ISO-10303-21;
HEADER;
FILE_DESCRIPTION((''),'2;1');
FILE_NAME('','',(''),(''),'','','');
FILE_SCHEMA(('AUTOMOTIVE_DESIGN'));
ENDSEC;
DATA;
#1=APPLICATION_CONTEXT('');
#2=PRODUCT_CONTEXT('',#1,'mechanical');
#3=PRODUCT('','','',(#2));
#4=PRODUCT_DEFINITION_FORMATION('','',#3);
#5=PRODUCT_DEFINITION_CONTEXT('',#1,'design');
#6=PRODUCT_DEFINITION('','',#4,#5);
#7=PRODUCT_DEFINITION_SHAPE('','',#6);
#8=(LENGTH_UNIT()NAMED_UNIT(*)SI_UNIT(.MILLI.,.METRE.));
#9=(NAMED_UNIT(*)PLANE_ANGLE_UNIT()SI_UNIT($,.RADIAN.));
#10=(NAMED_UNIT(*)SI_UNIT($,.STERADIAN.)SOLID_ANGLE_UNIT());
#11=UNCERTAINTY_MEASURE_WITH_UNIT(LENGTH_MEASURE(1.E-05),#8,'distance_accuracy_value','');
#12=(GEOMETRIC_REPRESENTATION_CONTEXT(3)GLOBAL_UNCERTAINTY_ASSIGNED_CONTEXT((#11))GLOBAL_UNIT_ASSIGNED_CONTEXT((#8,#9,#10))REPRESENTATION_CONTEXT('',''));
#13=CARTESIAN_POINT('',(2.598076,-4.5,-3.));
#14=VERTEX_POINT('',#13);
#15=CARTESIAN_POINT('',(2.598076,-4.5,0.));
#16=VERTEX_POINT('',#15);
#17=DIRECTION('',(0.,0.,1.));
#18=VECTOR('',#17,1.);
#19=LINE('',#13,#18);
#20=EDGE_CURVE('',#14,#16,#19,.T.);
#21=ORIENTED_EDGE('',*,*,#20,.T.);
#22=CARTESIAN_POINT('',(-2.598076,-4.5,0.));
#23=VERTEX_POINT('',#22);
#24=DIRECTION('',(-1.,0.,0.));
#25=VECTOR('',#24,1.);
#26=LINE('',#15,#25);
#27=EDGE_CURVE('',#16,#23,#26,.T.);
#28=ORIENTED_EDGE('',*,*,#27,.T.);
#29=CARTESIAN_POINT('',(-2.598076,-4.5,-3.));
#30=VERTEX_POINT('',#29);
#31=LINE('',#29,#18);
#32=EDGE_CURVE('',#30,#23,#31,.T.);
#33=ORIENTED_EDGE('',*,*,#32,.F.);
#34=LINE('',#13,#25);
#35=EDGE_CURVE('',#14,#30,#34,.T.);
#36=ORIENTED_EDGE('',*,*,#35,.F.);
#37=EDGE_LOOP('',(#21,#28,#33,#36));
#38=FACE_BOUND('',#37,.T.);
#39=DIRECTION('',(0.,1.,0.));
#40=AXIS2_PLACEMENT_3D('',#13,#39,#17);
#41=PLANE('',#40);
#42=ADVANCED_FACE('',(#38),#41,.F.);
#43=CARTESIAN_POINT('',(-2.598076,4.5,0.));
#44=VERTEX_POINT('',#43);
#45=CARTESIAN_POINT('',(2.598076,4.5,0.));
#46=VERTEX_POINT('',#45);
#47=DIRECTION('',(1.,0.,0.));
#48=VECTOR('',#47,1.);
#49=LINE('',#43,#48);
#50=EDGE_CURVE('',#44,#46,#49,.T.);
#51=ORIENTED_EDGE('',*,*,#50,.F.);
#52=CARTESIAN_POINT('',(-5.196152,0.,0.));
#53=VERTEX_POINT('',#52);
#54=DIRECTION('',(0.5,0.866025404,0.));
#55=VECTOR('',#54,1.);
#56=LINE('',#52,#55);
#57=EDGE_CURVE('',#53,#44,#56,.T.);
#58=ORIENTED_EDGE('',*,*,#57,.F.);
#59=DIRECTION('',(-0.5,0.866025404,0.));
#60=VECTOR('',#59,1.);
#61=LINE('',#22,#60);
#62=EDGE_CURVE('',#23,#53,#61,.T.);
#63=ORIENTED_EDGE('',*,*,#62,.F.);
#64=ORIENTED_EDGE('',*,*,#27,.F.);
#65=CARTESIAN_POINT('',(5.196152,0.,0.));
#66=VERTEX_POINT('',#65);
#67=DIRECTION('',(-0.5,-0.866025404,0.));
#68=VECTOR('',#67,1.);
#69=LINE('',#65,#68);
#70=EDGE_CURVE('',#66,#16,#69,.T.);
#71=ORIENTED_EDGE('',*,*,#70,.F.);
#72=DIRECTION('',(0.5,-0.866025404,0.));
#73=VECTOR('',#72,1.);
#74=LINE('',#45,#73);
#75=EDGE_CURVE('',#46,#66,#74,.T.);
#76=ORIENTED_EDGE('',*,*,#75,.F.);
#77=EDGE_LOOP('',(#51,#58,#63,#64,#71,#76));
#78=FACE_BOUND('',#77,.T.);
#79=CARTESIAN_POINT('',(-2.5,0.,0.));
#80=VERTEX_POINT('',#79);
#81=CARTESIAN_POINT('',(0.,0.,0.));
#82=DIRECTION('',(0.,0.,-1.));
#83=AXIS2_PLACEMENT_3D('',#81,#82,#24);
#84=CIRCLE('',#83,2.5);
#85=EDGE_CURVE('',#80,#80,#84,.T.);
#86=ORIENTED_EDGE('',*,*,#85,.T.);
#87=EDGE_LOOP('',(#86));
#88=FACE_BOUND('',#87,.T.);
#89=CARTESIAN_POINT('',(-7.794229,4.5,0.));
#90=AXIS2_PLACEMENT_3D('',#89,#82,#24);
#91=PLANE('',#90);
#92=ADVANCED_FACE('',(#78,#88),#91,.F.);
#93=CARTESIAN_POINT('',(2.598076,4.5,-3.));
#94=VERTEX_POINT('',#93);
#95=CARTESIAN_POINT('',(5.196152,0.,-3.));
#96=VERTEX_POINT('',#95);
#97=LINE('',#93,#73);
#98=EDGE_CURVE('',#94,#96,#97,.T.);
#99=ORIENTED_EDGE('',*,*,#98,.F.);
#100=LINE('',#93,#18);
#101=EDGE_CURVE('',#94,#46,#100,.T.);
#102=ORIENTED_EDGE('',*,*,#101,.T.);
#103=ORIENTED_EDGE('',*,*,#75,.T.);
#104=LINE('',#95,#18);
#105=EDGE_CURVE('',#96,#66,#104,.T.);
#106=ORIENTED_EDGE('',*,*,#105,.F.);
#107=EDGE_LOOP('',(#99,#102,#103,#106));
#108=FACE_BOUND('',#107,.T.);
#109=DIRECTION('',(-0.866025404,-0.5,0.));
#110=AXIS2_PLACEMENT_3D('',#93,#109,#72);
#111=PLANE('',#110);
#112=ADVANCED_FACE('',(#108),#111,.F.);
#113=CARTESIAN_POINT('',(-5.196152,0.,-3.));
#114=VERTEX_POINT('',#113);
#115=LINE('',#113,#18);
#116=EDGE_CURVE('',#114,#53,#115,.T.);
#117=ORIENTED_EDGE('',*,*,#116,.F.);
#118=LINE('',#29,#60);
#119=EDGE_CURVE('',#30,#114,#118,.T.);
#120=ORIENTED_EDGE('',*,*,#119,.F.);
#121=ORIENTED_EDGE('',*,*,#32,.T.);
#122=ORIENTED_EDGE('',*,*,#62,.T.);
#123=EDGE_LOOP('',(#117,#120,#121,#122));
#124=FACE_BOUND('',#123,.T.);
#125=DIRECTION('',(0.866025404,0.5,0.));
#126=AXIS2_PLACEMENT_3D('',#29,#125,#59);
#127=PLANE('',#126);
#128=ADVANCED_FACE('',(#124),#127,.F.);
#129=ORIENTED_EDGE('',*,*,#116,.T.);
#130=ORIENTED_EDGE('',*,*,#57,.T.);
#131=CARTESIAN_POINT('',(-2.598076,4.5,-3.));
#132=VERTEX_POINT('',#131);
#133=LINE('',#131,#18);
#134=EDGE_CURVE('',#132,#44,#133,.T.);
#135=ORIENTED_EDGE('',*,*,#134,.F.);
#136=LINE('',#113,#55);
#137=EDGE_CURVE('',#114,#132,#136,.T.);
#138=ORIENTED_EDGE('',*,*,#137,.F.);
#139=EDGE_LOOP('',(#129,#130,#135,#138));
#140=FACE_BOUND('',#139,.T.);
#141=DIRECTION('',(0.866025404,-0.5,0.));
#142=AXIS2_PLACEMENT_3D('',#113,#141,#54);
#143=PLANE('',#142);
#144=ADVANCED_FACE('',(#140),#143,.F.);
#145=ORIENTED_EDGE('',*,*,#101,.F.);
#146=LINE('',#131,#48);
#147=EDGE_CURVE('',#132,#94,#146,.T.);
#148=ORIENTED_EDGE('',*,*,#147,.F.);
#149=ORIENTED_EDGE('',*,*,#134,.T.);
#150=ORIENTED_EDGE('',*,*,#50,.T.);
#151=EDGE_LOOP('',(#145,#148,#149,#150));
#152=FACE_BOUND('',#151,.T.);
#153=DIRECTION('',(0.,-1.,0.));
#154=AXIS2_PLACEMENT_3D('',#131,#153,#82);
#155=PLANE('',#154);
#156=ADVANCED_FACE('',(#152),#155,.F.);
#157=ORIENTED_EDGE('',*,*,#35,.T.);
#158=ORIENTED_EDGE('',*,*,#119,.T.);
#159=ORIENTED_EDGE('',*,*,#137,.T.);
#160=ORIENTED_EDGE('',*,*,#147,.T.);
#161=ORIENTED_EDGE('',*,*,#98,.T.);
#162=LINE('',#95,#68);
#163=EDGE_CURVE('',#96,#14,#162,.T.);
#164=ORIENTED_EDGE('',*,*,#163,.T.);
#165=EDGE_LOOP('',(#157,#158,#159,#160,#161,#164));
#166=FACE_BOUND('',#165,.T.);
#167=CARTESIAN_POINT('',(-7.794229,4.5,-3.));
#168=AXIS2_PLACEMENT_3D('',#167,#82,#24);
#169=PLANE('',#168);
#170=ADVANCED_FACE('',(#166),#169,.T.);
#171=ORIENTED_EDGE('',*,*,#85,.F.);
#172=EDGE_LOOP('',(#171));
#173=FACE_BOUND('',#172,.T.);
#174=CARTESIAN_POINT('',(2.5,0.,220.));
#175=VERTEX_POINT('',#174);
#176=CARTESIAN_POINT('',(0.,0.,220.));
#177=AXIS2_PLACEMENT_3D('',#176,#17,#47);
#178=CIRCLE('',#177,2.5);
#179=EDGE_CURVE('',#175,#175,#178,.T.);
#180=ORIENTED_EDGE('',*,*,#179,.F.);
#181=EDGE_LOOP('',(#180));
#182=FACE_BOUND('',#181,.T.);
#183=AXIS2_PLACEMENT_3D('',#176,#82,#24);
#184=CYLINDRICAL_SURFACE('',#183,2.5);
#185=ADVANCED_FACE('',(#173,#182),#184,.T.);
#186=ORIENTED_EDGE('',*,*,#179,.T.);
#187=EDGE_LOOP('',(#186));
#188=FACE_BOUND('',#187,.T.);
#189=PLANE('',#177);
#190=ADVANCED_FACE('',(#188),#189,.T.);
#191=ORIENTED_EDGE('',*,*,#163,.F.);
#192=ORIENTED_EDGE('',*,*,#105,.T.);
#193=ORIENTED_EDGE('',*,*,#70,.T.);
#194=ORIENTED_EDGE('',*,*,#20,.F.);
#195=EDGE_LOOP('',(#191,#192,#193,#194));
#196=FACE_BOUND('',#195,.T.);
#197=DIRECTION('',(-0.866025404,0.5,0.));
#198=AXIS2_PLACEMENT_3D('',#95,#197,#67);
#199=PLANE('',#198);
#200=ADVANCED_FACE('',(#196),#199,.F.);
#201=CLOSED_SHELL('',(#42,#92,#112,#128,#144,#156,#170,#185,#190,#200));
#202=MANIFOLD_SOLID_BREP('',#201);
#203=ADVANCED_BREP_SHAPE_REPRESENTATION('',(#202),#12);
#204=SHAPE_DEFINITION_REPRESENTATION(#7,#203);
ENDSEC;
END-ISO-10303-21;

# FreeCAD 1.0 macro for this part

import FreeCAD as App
import Part
import Sketcher

V = App.Vector
Q = App.Units.Quantity


def add_polygon(sketch, points):
    """Adds a closed chain of lines whose ends are joined by coincident constraints."""
    first, n = sketch.GeometryCount, len(points)
    for a, b in zip(points, points[1:] + points[:1]):
        sketch.addGeometry(Part.LineSegment(App.Vector(*a, 0), App.Vector(*b, 0)), False)
    for i in range(n):
        sketch.addConstraint(Sketcher.Constraint("Coincident", first + i, 2, first + (i + 1) % n, 1))

doc = App.newDocument("Part")
body = doc.addObject("PartDesign::Body", "Body")

# Sketch on XY plane
sketch1 = body.newObject("Sketcher::SketchObject", "Sketch")
sketch1.AttachmentSupport = (doc.getObject("XY_Plane"), [""])
sketch1.MapMode = "FlatFace"
sketch1.addGeometry(Part.Circle(V(0, 0, 0), V(0, 0, 1), 2.5), False)
sketch1.addConstraint(Sketcher.Constraint("Coincident", 0, 3, -1, 1))
sketch1.addConstraint(Sketcher.Constraint("Diameter", 0, 5.0))
pad1 = body.newObject("PartDesign::Pad", "Pad")
pad1.Profile = sketch1
pad1.Length = 220

# Sketch on XY plane
sketch2 = body.newObject("Sketcher::SketchObject", "Sketch001")
sketch2.AttachmentSupport = (doc.getObject("XY_Plane"), [""])
sketch2.MapMode = "FlatFace"
add_polygon(sketch2, [(-5, 0), (-3, 4), (3, 4), (5, 0), (3, -4), (-3, -4)])  # lines 0-5
sketch2.addConstraint(Sketcher.Constraint("Horizontal", 1))
sketch2.addConstraint(Sketcher.Constraint("Horizontal", 4))
sketch2.addConstraint(Sketcher.Constraint("Symmetric", 0, 2, 3, 2, -1, 1))
sketch2.addConstraint(Sketcher.Constraint("Symmetric", 2, 2, 5, 2, -1, 1))
sketch2.addConstraint(Sketcher.Constraint("PointOnObject", 2, 2, -1))
sketch2.addConstraint(Sketcher.Constraint("Parallel", 2, 5))
sketch2.addConstraint(Sketcher.Constraint("Vertical", 1, 2, 3, 2))
sketch2.addConstraint(Sketcher.Constraint("Angle", 0, Q("60 deg")))
sketch2.addConstraint(Sketcher.Constraint("DistanceY", 3, 2, 1, 2, 9.0))
sketch2.addConstraint(Sketcher.Constraint("DistanceX", 1, 1, 1, 2, 5.196152))
pad2 = body.newObject("PartDesign::Pad", "Pad001")
pad2.Profile = sketch2
pad2.Length = 3
pad2.Reversed = True

doc.recompute()
